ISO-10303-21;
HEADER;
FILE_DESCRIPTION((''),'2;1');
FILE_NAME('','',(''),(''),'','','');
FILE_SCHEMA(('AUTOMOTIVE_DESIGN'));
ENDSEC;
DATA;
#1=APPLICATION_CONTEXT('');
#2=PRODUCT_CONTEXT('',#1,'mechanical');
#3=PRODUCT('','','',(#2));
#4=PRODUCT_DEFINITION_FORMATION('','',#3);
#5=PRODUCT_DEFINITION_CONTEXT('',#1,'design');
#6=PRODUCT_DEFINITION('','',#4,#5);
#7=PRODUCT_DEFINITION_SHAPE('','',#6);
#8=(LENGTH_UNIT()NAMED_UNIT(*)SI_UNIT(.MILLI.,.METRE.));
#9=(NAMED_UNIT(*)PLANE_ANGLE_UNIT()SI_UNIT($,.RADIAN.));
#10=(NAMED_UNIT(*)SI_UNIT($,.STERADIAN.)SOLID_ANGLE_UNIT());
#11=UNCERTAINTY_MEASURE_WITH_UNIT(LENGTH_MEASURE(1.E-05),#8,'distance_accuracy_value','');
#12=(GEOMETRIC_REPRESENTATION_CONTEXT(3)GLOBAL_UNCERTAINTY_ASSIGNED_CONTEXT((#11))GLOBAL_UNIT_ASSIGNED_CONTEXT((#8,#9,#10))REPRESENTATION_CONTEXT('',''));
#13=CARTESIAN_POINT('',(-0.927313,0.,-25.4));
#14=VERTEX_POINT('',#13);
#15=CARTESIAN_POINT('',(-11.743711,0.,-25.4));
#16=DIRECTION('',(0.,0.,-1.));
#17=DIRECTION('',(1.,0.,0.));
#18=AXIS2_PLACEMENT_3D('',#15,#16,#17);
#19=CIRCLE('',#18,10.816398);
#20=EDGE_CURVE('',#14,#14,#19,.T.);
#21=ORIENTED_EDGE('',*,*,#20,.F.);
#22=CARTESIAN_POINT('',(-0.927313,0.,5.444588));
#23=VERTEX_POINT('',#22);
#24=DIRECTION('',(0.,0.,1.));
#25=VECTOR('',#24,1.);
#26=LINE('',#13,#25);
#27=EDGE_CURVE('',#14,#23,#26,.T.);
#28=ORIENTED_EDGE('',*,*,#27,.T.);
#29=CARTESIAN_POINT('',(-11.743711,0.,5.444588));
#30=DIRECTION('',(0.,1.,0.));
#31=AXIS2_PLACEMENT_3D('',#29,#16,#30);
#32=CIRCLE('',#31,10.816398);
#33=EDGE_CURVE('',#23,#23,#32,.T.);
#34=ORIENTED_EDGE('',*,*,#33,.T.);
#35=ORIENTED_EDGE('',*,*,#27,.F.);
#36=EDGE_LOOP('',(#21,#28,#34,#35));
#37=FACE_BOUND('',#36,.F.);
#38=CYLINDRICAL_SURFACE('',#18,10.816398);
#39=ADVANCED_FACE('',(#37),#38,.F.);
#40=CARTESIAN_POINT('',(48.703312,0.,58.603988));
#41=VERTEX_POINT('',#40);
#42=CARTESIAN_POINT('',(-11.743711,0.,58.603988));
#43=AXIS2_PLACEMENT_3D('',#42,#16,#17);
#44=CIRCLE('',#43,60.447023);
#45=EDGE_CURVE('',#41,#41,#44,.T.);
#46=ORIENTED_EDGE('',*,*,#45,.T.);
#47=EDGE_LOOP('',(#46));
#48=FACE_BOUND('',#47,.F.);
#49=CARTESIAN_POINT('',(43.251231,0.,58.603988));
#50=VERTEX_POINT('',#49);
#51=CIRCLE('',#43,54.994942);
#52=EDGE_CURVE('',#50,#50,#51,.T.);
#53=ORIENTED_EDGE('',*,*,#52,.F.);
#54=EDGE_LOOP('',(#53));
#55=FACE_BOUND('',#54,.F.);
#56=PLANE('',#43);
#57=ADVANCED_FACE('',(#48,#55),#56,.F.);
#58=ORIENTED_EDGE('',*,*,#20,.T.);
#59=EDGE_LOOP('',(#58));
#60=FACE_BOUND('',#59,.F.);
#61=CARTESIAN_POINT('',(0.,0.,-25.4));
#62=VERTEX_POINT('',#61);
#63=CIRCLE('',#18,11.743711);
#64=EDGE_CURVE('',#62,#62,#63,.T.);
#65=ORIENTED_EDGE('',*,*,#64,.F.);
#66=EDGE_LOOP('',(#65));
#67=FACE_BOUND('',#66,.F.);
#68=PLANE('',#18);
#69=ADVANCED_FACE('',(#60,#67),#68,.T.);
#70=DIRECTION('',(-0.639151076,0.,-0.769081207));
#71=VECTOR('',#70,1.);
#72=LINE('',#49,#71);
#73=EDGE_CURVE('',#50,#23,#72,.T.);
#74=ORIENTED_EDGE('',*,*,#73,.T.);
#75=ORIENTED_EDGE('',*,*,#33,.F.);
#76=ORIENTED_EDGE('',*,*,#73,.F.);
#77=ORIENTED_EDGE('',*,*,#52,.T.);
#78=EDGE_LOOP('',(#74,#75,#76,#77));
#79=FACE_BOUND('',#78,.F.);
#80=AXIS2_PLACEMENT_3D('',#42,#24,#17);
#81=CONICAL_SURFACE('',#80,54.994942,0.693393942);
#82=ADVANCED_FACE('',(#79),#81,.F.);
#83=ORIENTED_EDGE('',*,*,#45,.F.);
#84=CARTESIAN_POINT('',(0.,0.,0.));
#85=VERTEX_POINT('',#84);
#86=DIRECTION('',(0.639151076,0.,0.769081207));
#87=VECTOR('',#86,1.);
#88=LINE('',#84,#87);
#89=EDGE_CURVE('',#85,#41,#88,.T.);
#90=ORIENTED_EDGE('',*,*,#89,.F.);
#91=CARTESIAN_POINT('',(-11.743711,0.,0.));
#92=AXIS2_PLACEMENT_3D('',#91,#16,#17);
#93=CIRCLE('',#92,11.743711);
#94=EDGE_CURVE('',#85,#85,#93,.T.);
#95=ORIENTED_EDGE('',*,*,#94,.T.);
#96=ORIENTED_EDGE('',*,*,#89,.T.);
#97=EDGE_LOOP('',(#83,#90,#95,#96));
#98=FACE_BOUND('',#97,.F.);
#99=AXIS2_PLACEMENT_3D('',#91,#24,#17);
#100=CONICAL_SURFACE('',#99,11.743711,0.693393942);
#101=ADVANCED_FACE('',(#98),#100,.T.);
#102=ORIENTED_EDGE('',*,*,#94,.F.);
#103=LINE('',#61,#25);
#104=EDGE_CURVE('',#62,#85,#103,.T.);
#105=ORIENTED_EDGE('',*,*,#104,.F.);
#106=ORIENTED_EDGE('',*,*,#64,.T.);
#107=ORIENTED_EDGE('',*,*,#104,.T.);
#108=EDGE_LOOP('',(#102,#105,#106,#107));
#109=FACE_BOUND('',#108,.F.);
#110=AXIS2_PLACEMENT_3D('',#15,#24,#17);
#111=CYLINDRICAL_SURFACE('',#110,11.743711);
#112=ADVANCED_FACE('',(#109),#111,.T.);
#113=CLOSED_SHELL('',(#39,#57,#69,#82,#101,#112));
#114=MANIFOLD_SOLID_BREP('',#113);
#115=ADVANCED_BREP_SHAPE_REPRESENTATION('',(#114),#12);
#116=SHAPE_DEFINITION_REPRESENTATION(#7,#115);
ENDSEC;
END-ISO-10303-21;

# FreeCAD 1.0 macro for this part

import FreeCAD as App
import Part
import Sketcher

V = App.Vector
Q = App.Units.Quantity


def add_polygon(sketch, points):
    """Adds a closed chain of lines whose ends are joined by coincident constraints."""
    first, n = sketch.GeometryCount, len(points)
    for a, b in zip(points, points[1:] + points[:1]):
        sketch.addGeometry(Part.LineSegment(App.Vector(*a, 0), App.Vector(*b, 0)), False)
    for i in range(n):
        sketch.addConstraint(Sketcher.Constraint("Coincident", first + i, 2, first + (i + 1) % n, 1))

doc = App.newDocument("Part")
body = doc.addObject("PartDesign::Body", "Body")

# Sketch on XZ plane
sketch1 = doc.addObject("Sketcher::SketchObject", "Sketch")
body.addObject(sketch1)
sketch1.AttachmentSupport = (doc.XZ_Plane, [""])
sketch1.MapMode = "FlatFace"
add_polygon(sketch1, [(0, -25), (0, 0), (49, 59), (43, 59), (-5, 0), (-12, 0), (-12, -25)])  # lines 0-6
sketch1.addGeometry(Part.LineSegment(V(-12, 59, 0), V(-12, -25, 0)), True)  # axis
sketch1.addConstraint([
    Sketcher.Constraint("Vertical", 0),
    Sketcher.Constraint("Horizontal", 2),
    Sketcher.Constraint("Horizontal", 4),
    Sketcher.Constraint("Vertical", 5),
    Sketcher.Constraint("Horizontal", 6),
    Sketcher.Constraint("Vertical", 7),
    Sketcher.Constraint("Coincident", 0, 2, -1, 1),
    Sketcher.Constraint("Coincident", 7, 2, 5, 2),
    Sketcher.Constraint("PointOnObject", 3, 2, -1),
    Sketcher.Constraint("Parallel", 1, 3),
    Sketcher.Constraint("Horizontal", 2, 2, 7, 1),
    Sketcher.Constraint("DistanceY", 0, 1, 0, 2, Q("1 in")),
    Sketcher.Constraint("Distance", 1, Q("3 in")),
    Sketcher.Constraint("DistanceX", 2, 2, 2, 1, 5.452081),
    Sketcher.Constraint("DistanceX", 4, 2, 4, 1, 6.29163),
    Sketcher.Constraint("DistanceY", 7, 2, 7, 1, 84.003988),
])
revolution = doc.addObject("PartDesign::Revolution", "Revolution")
body.addObject(revolution)
revolution.Profile = sketch1
revolution.ReferenceAxis = (sketch1, ["Axis0"])
revolution.Angle = 360

# Sketch on XY plane
sketch2 = doc.addObject("Sketcher::SketchObject", "Sketch001")
body.addObject(sketch2)
sketch2.AttachmentSupport = (doc.XY_Plane, [""])
sketch2.MapMode = "FlatFace"
sketch2.AttachmentOffset = App.Placement(V(0, 0, -1 * 25.4), App.Rotation())
sketch2.addGeometry(Part.Circle(V(-12, 0, 0), V(0, 0, 1), 11), False)
sketch2.addConstraint([
    Sketcher.Constraint("PointOnObject", 0, 3, -1),
    Sketcher.Constraint("Diameter", 0, 21.632796),
    Sketcher.Constraint("DistanceX", 0, 3, -1, 1, 11.743711),
])
pocket1 = doc.addObject("PartDesign::Pocket", "Pocket")
body.addObject(pocket1)
pocket1.Profile = sketch2
pocket1.Length = Q("2 in")
pocket1.Reversed = True

doc.recompute()
